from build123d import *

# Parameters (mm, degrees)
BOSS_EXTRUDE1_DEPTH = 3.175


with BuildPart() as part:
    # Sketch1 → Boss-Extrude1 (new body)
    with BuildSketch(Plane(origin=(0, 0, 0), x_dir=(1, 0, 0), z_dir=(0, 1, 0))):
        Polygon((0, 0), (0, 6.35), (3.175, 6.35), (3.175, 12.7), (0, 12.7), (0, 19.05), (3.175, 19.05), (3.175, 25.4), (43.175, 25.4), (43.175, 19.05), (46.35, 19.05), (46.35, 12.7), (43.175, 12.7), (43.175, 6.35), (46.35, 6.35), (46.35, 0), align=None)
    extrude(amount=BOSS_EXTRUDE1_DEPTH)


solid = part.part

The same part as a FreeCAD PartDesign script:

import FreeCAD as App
import Part
import Sketcher

V = App.Vector
Q = App.Units.Quantity

doc = App.newDocument("Part")
body = doc.addObject("PartDesign::Body", "Body")

sketch1 = body.newObject("Sketcher::SketchObject", "Sketch")
sketch1.AttachmentSupport = (doc.getObject("XZ_Plane"), [""])
sketch1.MapMode = "FlatFace"
sketch1.addGeometry([
    Part.LineSegment(V(0, -6.35, 0), V(0, 0, 0)),
    Part.LineSegment(V(0, 0, 0), V(46.35, 0, 0)),
    Part.LineSegment(V(46.35, 0, 0), V(46.35, -6.35, 0)),
    Part.LineSegment(V(46.35, -6.35, 0), V(43.175, -6.35, 0)),
    Part.LineSegment(V(43.175, -6.35, 0), V(43.175, -12.7, 0)),
    Part.LineSegment(V(43.175, -12.7, 0), V(46.35, -12.7, 0)),
    Part.LineSegment(V(46.35, -12.7, 0), V(46.35, -19.05, 0)),
    Part.LineSegment(V(46.35, -19.05, 0), V(43.175, -19.05, 0)),
    Part.LineSegment(V(43.175, -19.05, 0), V(43.175, -25.4, 0)),
    Part.LineSegment(V(43.175, -25.4, 0), V(3.175, -25.4, 0)),
    Part.LineSegment(V(3.175, -25.4, 0), V(3.175, -19.05, 0)),
    Part.LineSegment(V(3.175, -19.05, 0), V(0, -19.05, 0)),
    Part.LineSegment(V(0, -19.05, 0), V(0, -12.7, 0)),
    Part.LineSegment(V(0, -12.7, 0), V(3.175, -12.7, 0)),
    Part.LineSegment(V(3.175, -12.7, 0), V(3.175, -6.35, 0)),
    Part.LineSegment(V(3.175, -6.35, 0), V(0, -6.35, 0)),
], False)
sketch1.addConstraint([
    Sketcher.Constraint("Coincident", 0, 2, 1, 1),
    Sketcher.Constraint("Coincident", 1, 2, 2, 1),
    Sketcher.Constraint("Coincident", 2, 2, 3, 1),
    Sketcher.Constraint("Coincident", 3, 2, 4, 1),
    Sketcher.Constraint("Coincident", 4, 2, 5, 1),
    Sketcher.Constraint("Coincident", 5, 2, 6, 1),
    Sketcher.Constraint("Coincident", 6, 2, 7, 1),
    Sketcher.Constraint("Coincident", 7, 2, 8, 1),
    Sketcher.Constraint("Coincident", 8, 2, 9, 1),
    Sketcher.Constraint("Coincident", 9, 2, 10, 1),
    Sketcher.Constraint("Coincident", 10, 2, 11, 1),
    Sketcher.Constraint("Coincident", 11, 2, 12, 1),
    Sketcher.Constraint("Coincident", 12, 2, 13, 1),
    Sketcher.Constraint("Coincident", 13, 2, 14, 1),
    Sketcher.Constraint("Coincident", 14, 2, 15, 1),
    Sketcher.Constraint("Coincident", 15, 2, 0, 1),
    Sketcher.Constraint("Vertical", 0),
    Sketcher.Constraint("Horizontal", 1),
    Sketcher.Constraint("Vertical", 2),
    Sketcher.Constraint("Horizontal", 3),
    Sketcher.Constraint("Vertical", 4),
    Sketcher.Constraint("Horizontal", 5),
    Sketcher.Constraint("Vertical", 6),
    Sketcher.Constraint("Horizontal", 7),
    Sketcher.Constraint("Vertical", 8),
    Sketcher.Constraint("Horizontal", 9),
    Sketcher.Constraint("Vertical", 10),
    Sketcher.Constraint("Horizontal", 11),
    Sketcher.Constraint("Vertical", 12),
    Sketcher.Constraint("Horizontal", 13),
    Sketcher.Constraint("Vertical", 14),
    Sketcher.Constraint("Horizontal", 15),
    Sketcher.Constraint("Coincident", 0, 2, -1, 1),
    Sketcher.Constraint("PointOnObject", 11, 2, -2),
    Sketcher.Constraint("Horizontal", 7, 2, 10, 2),
    Sketcher.Constraint("Horizontal", 5, 2, 12, 2),
    Sketcher.Constraint("Horizontal", 3, 2, 14, 2),
    Sketcher.Constraint("Vertical", 2, 2, 5, 2),
    Sketcher.Constraint("Vertical", 4, 2, 7, 2),
    Sketcher.Constraint("Vertical", 10, 2, 13, 2),
    Sketcher.Constraint("Equal", 7, 11),
    Sketcher.Constraint("Equal", 2, 4),
    Sketcher.Constraint("Equal", 4, 6),
    Sketcher.Constraint("Equal", 6, 8),
    Sketcher.Constraint("DistanceY", 8, 2, -1, 1, Q("1 in")),
    Sketcher.Constraint("DistanceX", 3, 2, 3, 1, Q("0.125 in")),
    Sketcher.Constraint("DistanceX", 1, 1, 1, 2, 46.35),
])
pad1 = body.newObject("PartDesign::Pad", "Pad")
pad1.Profile = sketch1
pad1.Length = Q("0.125 in")
pad1.Reversed = True

doc.recompute()
